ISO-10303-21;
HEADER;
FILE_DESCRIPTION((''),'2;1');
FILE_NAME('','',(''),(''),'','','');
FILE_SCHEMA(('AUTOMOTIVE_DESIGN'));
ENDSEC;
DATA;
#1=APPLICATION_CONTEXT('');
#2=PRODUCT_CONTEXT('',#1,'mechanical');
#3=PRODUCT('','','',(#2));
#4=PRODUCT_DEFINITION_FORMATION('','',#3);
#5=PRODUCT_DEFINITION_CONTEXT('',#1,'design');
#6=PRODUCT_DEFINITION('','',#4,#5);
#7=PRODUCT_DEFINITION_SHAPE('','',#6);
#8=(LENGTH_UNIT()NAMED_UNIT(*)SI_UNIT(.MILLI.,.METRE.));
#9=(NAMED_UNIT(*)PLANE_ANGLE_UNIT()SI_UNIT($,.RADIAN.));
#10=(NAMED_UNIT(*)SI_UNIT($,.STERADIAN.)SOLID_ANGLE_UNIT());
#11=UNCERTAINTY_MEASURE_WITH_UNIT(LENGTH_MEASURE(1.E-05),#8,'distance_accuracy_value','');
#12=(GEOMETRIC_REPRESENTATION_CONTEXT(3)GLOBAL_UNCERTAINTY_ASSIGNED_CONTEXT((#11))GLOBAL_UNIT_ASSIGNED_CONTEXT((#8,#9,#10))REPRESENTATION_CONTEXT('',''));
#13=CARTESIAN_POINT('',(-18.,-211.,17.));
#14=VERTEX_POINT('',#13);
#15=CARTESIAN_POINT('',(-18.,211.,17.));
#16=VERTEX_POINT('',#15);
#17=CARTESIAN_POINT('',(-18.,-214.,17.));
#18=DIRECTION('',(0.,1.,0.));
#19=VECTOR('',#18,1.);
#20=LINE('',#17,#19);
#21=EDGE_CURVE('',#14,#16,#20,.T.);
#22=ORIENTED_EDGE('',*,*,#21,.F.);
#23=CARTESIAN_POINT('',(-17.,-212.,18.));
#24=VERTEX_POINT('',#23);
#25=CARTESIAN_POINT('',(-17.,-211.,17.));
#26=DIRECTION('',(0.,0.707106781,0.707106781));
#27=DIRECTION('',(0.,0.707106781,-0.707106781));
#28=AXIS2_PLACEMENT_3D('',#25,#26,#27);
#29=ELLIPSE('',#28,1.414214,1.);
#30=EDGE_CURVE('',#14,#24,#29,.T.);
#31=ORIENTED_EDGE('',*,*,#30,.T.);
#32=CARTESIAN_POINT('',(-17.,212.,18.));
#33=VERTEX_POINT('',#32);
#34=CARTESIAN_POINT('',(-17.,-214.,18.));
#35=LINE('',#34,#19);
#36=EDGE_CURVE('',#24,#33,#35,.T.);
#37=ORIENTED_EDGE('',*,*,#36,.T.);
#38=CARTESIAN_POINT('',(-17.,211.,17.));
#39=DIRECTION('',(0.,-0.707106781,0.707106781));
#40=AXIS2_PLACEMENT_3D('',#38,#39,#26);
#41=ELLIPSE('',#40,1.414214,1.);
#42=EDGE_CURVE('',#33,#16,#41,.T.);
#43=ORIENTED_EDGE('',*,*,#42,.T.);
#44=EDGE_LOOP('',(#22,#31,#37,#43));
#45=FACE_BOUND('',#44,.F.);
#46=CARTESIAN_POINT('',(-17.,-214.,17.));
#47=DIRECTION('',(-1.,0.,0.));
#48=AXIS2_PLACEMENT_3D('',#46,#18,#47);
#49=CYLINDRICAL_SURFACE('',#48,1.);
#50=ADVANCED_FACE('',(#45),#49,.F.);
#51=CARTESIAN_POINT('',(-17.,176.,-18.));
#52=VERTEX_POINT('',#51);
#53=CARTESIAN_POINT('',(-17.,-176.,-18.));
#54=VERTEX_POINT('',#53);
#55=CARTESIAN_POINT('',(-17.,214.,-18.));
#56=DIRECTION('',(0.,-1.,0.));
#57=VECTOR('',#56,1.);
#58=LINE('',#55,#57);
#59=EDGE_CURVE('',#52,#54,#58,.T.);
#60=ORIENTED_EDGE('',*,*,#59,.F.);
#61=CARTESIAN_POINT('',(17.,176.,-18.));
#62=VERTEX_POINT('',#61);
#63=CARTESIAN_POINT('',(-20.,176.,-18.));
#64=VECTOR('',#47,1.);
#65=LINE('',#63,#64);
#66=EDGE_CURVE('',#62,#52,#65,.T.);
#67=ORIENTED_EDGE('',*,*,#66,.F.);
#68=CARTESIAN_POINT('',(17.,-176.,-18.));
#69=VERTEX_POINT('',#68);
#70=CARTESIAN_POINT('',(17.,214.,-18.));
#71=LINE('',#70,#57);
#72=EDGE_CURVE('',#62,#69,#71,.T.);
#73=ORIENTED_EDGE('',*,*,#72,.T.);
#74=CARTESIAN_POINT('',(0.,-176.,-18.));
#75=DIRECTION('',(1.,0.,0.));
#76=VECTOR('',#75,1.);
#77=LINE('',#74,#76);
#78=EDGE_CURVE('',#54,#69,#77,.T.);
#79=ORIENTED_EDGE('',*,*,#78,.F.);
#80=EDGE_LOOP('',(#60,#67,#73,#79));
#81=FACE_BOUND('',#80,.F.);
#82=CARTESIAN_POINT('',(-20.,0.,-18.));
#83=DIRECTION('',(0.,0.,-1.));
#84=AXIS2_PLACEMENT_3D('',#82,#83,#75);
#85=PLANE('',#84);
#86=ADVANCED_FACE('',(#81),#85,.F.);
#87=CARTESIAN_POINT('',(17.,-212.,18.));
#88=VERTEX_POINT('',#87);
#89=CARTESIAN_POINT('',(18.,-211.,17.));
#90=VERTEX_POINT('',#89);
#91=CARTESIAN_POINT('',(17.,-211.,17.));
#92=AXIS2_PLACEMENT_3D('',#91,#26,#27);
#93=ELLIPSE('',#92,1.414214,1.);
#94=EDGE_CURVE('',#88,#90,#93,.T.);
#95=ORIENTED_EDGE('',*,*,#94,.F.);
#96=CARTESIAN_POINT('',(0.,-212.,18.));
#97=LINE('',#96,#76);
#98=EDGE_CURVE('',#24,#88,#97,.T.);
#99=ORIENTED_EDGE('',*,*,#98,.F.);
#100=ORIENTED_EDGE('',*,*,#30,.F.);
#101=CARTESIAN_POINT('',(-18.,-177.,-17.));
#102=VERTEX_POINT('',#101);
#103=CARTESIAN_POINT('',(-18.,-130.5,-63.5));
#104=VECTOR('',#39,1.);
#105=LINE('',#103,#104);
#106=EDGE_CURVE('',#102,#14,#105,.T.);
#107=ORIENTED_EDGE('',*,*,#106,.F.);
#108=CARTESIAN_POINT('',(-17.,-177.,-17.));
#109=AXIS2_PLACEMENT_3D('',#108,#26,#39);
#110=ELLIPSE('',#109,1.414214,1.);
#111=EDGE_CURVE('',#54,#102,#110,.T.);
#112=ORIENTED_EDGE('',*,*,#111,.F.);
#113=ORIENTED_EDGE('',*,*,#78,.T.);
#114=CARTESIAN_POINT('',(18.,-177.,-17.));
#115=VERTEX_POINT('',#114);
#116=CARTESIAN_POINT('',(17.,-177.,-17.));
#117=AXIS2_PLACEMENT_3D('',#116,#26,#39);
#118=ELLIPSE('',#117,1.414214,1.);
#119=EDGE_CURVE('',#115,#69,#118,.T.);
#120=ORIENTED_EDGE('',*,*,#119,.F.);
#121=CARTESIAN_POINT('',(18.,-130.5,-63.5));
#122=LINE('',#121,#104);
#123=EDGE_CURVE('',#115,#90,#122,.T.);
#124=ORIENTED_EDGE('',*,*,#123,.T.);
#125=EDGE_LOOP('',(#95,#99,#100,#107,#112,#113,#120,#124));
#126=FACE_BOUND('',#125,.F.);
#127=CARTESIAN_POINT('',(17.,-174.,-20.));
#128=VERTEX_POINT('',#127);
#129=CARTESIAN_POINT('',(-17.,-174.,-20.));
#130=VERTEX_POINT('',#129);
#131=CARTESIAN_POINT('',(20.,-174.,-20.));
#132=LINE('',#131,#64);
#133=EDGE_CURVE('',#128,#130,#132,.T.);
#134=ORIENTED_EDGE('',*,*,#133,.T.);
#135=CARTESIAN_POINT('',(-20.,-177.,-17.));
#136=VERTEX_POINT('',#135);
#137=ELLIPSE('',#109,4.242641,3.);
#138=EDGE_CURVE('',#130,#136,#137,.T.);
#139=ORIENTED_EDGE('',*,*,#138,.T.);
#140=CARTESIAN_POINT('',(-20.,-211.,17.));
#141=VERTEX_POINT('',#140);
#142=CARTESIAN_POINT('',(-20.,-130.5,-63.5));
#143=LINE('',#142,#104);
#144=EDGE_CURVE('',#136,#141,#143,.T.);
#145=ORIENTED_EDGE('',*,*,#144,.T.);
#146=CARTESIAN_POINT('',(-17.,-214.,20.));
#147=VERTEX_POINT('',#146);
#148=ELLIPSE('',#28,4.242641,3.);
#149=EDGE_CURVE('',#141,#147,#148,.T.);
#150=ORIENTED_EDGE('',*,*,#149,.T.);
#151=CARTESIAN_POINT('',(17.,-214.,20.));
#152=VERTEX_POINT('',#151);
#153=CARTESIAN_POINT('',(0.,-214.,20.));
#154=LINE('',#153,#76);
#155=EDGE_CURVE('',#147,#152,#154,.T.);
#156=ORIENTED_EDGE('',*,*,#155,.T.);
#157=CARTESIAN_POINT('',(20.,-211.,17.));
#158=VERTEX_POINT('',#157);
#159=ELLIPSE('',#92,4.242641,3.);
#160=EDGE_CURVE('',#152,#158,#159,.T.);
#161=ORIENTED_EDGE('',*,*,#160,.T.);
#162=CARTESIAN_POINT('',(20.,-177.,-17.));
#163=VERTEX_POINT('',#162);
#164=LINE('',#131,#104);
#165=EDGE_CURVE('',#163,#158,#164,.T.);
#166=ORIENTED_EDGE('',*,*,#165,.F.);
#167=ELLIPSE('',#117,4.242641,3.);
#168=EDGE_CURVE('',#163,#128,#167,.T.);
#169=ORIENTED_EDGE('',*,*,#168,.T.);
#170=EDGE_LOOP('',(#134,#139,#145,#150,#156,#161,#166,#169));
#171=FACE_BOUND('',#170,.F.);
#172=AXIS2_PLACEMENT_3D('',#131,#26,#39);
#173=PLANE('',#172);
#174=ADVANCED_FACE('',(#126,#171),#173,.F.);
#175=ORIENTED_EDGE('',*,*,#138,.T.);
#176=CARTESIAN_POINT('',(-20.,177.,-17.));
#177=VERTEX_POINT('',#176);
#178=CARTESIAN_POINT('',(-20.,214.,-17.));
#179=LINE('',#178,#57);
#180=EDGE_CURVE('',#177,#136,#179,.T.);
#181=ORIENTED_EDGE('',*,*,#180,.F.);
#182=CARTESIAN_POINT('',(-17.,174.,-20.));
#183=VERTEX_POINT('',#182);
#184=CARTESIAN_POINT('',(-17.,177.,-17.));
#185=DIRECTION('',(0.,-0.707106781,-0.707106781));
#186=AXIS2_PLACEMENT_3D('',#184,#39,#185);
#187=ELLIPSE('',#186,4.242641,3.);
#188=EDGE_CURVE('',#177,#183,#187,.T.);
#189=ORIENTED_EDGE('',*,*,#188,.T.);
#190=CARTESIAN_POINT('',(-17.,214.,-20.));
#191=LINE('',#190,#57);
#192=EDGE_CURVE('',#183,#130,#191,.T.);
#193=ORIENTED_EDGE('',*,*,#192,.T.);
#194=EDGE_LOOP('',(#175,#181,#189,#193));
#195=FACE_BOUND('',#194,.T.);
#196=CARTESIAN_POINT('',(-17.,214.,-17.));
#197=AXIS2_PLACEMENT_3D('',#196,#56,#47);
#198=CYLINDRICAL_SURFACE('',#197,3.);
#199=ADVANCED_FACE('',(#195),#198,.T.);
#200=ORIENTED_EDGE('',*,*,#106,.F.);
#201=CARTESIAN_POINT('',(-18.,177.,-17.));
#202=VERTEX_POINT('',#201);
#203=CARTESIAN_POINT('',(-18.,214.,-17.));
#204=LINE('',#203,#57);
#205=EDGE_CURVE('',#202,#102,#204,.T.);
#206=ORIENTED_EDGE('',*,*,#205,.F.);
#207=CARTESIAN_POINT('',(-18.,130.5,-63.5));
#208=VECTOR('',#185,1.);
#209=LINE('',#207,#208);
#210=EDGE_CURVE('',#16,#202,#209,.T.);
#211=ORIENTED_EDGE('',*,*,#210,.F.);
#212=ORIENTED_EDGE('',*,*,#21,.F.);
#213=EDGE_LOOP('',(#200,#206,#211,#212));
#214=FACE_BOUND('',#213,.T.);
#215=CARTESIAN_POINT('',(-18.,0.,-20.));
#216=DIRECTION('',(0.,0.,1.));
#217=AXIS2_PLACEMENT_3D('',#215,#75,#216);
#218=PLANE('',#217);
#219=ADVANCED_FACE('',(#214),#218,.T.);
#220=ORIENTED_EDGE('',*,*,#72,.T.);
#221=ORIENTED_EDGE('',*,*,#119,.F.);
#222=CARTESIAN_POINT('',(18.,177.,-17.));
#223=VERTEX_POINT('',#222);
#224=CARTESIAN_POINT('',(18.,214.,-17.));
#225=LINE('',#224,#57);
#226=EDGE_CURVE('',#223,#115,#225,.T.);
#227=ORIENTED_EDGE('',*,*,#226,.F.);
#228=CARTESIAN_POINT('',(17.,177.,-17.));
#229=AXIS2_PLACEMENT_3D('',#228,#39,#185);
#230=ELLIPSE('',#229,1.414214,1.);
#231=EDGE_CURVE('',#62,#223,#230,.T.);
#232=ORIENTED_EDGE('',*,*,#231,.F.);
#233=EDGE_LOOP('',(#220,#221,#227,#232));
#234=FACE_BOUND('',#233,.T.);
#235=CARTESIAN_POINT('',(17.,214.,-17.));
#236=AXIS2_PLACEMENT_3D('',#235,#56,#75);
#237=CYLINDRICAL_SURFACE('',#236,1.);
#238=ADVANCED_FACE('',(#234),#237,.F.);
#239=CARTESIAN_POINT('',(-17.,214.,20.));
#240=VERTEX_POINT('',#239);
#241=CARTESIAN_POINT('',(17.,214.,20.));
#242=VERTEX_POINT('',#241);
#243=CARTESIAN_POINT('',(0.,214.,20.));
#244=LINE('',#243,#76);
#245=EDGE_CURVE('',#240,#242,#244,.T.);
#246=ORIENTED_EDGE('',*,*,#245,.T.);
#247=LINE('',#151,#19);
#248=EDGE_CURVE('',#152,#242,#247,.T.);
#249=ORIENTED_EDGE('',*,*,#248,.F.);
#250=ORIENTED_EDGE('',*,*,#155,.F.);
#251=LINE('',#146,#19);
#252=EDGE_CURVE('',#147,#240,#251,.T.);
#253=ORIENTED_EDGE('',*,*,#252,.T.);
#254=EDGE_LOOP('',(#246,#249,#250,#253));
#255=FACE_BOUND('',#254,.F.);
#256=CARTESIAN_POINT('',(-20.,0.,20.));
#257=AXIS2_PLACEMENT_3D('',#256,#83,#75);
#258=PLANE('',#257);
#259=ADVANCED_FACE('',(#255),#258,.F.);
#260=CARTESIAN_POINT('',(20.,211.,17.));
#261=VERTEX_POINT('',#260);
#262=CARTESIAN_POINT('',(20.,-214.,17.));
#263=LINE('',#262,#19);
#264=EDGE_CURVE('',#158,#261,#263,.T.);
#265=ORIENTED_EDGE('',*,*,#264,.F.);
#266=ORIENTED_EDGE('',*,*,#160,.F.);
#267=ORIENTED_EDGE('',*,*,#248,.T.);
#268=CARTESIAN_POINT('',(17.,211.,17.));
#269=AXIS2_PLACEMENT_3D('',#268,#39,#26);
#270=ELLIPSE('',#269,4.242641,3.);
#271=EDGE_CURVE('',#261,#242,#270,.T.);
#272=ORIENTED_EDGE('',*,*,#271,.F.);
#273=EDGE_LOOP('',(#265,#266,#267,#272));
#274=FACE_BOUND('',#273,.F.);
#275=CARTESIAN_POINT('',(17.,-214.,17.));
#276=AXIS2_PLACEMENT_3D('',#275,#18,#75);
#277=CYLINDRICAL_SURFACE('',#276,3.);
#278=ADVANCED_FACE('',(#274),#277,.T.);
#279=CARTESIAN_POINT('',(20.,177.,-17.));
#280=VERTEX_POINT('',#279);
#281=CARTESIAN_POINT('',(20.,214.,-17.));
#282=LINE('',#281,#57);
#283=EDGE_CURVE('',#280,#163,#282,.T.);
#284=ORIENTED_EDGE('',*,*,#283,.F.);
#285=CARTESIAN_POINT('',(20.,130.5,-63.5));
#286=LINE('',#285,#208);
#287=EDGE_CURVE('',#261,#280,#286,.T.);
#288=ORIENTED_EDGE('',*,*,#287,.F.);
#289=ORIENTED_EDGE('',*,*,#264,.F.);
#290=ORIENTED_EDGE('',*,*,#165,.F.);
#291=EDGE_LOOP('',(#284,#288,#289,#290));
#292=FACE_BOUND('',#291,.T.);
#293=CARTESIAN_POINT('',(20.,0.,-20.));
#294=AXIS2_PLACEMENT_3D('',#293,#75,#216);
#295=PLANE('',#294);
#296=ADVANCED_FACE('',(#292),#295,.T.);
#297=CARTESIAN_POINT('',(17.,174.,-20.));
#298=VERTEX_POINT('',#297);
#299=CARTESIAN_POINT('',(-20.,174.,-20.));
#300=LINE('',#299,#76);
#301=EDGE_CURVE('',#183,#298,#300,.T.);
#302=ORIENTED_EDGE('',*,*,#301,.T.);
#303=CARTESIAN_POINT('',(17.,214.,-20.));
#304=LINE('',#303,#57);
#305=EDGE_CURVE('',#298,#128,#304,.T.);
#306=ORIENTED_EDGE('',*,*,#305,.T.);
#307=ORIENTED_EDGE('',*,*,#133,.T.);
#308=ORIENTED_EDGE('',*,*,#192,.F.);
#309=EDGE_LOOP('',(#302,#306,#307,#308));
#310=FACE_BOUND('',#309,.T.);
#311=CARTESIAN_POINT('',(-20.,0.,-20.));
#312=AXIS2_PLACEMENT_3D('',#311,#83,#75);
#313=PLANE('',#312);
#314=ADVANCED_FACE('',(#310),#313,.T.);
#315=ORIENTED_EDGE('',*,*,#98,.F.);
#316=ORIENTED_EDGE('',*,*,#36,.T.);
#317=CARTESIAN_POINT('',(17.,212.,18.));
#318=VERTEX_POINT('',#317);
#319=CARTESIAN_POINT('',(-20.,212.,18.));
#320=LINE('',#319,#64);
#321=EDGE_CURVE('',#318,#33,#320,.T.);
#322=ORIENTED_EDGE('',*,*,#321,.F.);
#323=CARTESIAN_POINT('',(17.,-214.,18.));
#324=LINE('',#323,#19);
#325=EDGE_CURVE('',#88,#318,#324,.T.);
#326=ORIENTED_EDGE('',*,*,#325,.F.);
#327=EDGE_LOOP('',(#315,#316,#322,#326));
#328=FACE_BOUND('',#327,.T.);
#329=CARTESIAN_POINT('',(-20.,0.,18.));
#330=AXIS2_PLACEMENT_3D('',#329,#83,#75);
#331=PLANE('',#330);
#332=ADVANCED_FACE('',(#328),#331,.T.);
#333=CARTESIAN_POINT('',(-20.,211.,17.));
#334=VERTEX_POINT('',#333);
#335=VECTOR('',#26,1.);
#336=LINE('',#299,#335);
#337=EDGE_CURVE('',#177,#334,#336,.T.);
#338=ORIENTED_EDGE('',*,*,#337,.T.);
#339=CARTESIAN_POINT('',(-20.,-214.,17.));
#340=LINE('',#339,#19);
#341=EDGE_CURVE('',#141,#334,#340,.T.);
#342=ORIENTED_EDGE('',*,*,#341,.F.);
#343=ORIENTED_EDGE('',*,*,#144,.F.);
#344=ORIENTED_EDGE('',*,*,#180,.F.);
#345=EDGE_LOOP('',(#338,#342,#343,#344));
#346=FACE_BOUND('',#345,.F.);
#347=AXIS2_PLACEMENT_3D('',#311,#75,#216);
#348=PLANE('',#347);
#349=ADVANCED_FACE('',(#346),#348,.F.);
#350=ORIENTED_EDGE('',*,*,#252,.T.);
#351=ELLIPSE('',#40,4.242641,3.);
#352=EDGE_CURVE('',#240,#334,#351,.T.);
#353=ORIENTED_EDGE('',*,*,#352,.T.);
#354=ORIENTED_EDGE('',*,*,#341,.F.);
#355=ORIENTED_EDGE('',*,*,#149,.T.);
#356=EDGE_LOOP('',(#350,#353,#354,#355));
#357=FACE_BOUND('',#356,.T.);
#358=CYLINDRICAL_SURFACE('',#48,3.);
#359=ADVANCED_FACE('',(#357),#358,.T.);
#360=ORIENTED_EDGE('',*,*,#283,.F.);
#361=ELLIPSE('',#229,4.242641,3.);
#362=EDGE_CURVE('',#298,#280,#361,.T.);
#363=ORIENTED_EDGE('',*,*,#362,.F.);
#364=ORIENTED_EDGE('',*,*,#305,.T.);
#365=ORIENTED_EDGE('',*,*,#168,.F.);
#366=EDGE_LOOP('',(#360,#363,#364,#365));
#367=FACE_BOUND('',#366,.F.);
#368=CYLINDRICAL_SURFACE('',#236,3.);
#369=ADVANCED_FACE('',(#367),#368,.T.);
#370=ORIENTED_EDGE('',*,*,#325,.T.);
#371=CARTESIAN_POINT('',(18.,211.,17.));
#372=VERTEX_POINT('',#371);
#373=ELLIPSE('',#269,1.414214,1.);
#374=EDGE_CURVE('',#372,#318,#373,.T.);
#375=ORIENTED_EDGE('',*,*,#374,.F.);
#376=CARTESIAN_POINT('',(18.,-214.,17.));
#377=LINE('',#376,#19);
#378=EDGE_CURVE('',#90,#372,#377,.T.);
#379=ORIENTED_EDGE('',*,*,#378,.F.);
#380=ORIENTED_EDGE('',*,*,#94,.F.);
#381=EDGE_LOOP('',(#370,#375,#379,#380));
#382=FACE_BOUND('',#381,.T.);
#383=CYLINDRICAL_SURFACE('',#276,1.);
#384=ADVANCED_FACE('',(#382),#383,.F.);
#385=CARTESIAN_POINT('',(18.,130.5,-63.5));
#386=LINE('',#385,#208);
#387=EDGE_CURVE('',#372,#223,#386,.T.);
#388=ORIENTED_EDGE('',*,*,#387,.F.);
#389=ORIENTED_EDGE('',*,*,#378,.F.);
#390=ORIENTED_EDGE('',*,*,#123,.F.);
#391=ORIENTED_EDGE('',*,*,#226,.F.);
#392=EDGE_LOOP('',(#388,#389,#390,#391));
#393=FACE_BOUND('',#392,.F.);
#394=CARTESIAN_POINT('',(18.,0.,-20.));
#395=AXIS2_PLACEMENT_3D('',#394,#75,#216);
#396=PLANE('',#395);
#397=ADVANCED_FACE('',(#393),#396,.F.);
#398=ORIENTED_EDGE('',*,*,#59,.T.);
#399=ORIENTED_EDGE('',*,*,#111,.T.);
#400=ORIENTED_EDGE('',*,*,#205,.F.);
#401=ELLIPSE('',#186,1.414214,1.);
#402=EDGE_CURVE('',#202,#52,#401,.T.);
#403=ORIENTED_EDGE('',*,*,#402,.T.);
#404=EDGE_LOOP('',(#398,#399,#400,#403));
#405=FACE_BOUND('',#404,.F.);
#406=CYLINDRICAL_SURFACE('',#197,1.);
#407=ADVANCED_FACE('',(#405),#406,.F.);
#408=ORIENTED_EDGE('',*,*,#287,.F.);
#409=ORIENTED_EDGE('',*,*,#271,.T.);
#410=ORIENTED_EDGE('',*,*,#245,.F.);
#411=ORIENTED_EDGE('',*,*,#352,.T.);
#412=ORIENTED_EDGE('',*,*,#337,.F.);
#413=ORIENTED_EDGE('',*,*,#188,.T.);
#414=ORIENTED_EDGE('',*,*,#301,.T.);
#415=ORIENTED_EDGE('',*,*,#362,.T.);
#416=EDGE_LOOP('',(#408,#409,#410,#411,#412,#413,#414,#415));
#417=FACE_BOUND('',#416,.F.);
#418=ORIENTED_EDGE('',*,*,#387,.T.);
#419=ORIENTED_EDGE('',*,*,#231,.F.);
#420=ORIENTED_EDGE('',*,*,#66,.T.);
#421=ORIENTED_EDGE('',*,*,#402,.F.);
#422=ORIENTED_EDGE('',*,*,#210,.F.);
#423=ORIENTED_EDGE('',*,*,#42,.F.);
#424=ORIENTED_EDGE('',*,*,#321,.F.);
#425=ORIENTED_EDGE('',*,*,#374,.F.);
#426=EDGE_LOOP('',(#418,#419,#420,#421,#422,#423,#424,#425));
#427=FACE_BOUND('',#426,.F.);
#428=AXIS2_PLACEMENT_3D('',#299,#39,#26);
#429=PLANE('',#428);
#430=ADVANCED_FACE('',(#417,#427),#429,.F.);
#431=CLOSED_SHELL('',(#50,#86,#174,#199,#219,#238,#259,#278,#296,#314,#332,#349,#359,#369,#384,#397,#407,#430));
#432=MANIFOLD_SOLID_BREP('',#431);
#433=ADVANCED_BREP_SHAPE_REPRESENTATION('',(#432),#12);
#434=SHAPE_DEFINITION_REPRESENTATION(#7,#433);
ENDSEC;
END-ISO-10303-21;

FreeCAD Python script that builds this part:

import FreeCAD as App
import Part
import Sketcher
from FreeCAD import Vector
Q = App.Units.Quantity


def edges_at(feature, points):
    """Names of the edges that pass closest to the given points."""
    edges = feature.Shape.Edges
    near = lambda p: min(range(len(edges)), key=lambda i: edges[i].distToShape(Part.Vertex(*p))[0])
    return sorted({f"Edge{near(p) + 1}" for p in points})


def faces_at(feature, points):
    """Names of the faces that lie closest to the given points."""
    faces = feature.Shape.Faces
    near = lambda p: min(range(len(faces)), key=lambda i: faces[i].distToShape(Part.Vertex(*p))[0])
    return sorted({f"Face{near(p) + 1}" for p in points})

doc = App.newDocument("Part")
body = doc.addObject("PartDesign::Body", "Body")

sketch1 = body.newObject("Sketcher::SketchObject", "Sketch")
sketch1.AttachmentSupport = (doc.getObject("XZ_Plane"), [""])
sketch1.MapMode = "FlatFace"
sketch1.addGeometry(Part.LineSegment(Vector(-20, 20, 0), Vector(-20, -20, 0)), False)
sketch1.addGeometry(Part.LineSegment(Vector(-20, -20, 0), Vector(20, -20, 0)), False)
sketch1.addGeometry(Part.LineSegment(Vector(20, -20, 0), Vector(20, 20, 0)), False)
sketch1.addGeometry(Part.LineSegment(Vector(20, 20, 0), Vector(-20, 20, 0)), False)
sketch1.addConstraint(Sketcher.Constraint("Coincident", 0, 2, 1, 1))
sketch1.addConstraint(Sketcher.Constraint("Coincident", 1, 2, 2, 1))
sketch1.addConstraint(Sketcher.Constraint("Coincident", 2, 2, 3, 1))
sketch1.addConstraint(Sketcher.Constraint("Coincident", 3, 2, 0, 1))
sketch1.addConstraint(Sketcher.Constraint("Vertical", 0))
sketch1.addConstraint(Sketcher.Constraint("Horizontal", 1))
sketch1.addConstraint(Sketcher.Constraint("Vertical", 2))
sketch1.addConstraint(Sketcher.Constraint("Horizontal", 3))
sketch1.addConstraint(Sketcher.Constraint("Symmetric", 0, 2, 2, 2, -1, 1))
sketch1.addConstraint(Sketcher.Constraint("Equal", 3, 0))
sketch1.addConstraint(Sketcher.Constraint("DistanceX", 1, 1, 1, 2, Q("40 mm")))
pad1 = body.newObject("PartDesign::Pad", "Pad")
pad1.Profile = sketch1
pad1.Length = 428
pad1.Midplane = True
doc.recompute()

fillet = body.newObject("PartDesign::Fillet", "Fillet")
fillet.Base = (pad1, edges_at(pad1, [
    (20, 0, 20),
    (-20, 0, 20),
    (20, 0, -20),
    (-20, 0, -20),
]))
fillet.Radius = 3
doc.recompute()

thickness = body.newObject("PartDesign::Thickness", "Thickness")
thickness.Base = (fillet, faces_at(fillet, [(0, -214, 0), (0, 214, 0)]))
thickness.Value = 2
thickness.Reversed = True
thickness.Join = "Arc"

sketch2 = body.newObject("Sketcher::SketchObject", "Sketch001")
sketch2.AttachmentSupport = (doc.getObject("YZ_Plane"), [""])
sketch2.MapMode = "FlatFace"
sketch2.AttachmentOffset = App.Placement(Vector(0, 0, -20), App.Rotation())
sketch2.addGeometry(Part.LineSegment(Vector(214, 20, 0), Vector(214, -20, 0)), False)
sketch2.addGeometry(Part.LineSegment(Vector(214, -20, 0), Vector(174, -20, 0)), False)
sketch2.addGeometry(Part.LineSegment(Vector(174, -20, 0), Vector(214, 20, 0)), False)
sketch2.addConstraint(Sketcher.Constraint("Coincident", 0, 2, 1, 1))
sketch2.addConstraint(Sketcher.Constraint("Coincident", 1, 2, 2, 1))
sketch2.addConstraint(Sketcher.Constraint("Coincident", 2, 2, 0, 1))
sketch2.addConstraint(Sketcher.Constraint("Vertical", 0))
sketch2.addConstraint(Sketcher.Constraint("Horizontal", 1))
sketch2.addConstraint(Sketcher.Constraint("Equal", 1, 0))
sketch2.addConstraint(Sketcher.Constraint("DistanceX", 1, 2, 1, 1, Q("40 mm")))
sketch2.addConstraint(Sketcher.Constraint("DistanceX", -1, 1, 0, 2, Q("214 mm")))
sketch2.addConstraint(Sketcher.Constraint("DistanceY", 0, 2, -1, 1, Q("20 mm")))
pocket1 = body.newObject("PartDesign::Pocket", "Pocket")
pocket1.Profile = sketch2
pocket1.Type = "ThroughAll"
pocket1.Reversed = True

sketch3 = body.newObject("Sketcher::SketchObject", "Sketch002")
sketch3.AttachmentSupport = (doc.getObject("YZ_Plane"), [""])
sketch3.MapMode = "FlatFace"
sketch3.AttachmentOffset = App.Placement(Vector(0, 0, 20), App.Rotation())
sketch3.addGeometry(Part.LineSegment(Vector(-214, -20, 0), Vector(-174, -20, 0)), False)
sketch3.addGeometry(Part.LineSegment(Vector(-174, -20, 0), Vector(-214, 20, 0)), False)
sketch3.addGeometry(Part.LineSegment(Vector(-214, 20, 0), Vector(-214, -20, 0)), False)
sketch3.addConstraint(Sketcher.Constraint("Coincident", 0, 2, 1, 1))
sketch3.addConstraint(Sketcher.Constraint("Coincident", 1, 2, 2, 1))
sketch3.addConstraint(Sketcher.Constraint("Coincident", 2, 2, 0, 1))
sketch3.addConstraint(Sketcher.Constraint("Horizontal", 0))
sketch3.addConstraint(Sketcher.Constraint("Vertical", 2))
sketch3.addConstraint(Sketcher.Constraint("Equal", 0, 2))
sketch3.addConstraint(Sketcher.Constraint("DistanceX", 0, 1, 0, 2, Q("40 mm")))
sketch3.addConstraint(Sketcher.Constraint("DistanceX", 0, 2, -1, 1, Q("174 mm")))
sketch3.addConstraint(Sketcher.Constraint("DistanceY", 0, 2, -1, 1, Q("20 mm")))
pocket2 = body.newObject("PartDesign::Pocket", "Pocket001")
pocket2.Profile = sketch3
pocket2.Type = "ThroughAll"

doc.recompute()
